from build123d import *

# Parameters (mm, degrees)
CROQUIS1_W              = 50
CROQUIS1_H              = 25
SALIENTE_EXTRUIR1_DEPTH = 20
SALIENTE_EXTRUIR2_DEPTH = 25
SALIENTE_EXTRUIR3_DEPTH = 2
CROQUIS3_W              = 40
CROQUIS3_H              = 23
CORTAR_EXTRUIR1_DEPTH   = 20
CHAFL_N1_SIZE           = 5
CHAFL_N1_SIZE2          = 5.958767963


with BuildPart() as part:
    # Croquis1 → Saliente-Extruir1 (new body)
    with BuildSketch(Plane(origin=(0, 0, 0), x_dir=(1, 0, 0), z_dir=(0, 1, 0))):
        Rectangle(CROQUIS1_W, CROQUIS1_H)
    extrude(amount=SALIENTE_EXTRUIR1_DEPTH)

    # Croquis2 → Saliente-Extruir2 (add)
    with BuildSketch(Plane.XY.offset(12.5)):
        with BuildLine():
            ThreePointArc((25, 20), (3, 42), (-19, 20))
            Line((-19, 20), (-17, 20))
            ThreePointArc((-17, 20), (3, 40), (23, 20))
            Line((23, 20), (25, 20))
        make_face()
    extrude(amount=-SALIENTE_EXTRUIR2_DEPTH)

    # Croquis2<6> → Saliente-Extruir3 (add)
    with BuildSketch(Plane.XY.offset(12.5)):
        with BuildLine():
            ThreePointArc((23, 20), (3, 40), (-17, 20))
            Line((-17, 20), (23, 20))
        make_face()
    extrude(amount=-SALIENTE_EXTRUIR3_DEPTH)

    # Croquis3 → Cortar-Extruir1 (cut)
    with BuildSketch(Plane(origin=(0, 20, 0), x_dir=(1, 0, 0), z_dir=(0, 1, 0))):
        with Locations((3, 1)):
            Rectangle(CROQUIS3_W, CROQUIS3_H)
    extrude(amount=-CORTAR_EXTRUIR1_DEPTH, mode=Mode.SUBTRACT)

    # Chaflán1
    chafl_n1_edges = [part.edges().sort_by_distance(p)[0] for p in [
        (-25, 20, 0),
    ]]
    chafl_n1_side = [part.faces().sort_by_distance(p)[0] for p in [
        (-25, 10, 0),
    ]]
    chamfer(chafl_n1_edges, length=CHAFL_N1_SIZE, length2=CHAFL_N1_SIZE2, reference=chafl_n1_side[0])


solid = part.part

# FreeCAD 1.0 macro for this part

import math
import FreeCAD as App
import Part
import Sketcher


def edges_at(feature, points):
    """Names of the edges that pass closest to the given points."""
    edges = feature.Shape.Edges
    near = lambda p: min(range(len(edges)), key=lambda i: edges[i].distToShape(Part.Vertex(*p))[0])
    return sorted({f"Edge{near(p) + 1}" for p in points})

doc = App.newDocument("Part")
body = doc.addObject("PartDesign::Body", "Body")

sketch1 = doc.addObject("Sketcher::SketchObject", "Sketch")
body.addObject(sketch1)
sketch1.AttachmentSupport = (doc.XZ_Plane, [""])
sketch1.MapMode = "FlatFace"
sketch1.addGeometry([
    Part.LineSegment(App.Vector(-25, -12, 0), App.Vector(-25, 12, 0)),
    Part.LineSegment(App.Vector(-25, 12, 0), App.Vector(25, 12, 0)),
    Part.LineSegment(App.Vector(25, 12, 0), App.Vector(25, -12, 0)),
    Part.LineSegment(App.Vector(25, -12, 0), App.Vector(-25, -12, 0)),
], False)
sketch1.addConstraint([
    Sketcher.Constraint("Coincident", 0, 2, 1, 1),
    Sketcher.Constraint("Coincident", 1, 2, 2, 1),
    Sketcher.Constraint("Coincident", 2, 2, 3, 1),
    Sketcher.Constraint("Coincident", 3, 2, 0, 1),
    Sketcher.Constraint("Vertical", 0),
    Sketcher.Constraint("Horizontal", 1),
    Sketcher.Constraint("Vertical", 2),
    Sketcher.Constraint("Horizontal", 3),
    Sketcher.Constraint("Symmetric", 0, 2, 2, 2, -1, 1),
    Sketcher.Constraint("DistanceX", 1, 1, 1, 2, 50.0),
    Sketcher.Constraint("DistanceY", 0, 1, 0, 2, 25.0),
])
pad1 = doc.addObject("PartDesign::Pad", "Pad")
body.addObject(pad1)
pad1.Profile = sketch1
pad1.Length = 20
pad1.Reversed = True

sketch2 = doc.addObject("Sketcher::SketchObject", "Sketch001")
body.addObject(sketch2)
sketch2.AttachmentSupport = (doc.XY_Plane, [""])
sketch2.MapMode = "FlatFace"
sketch2.AttachmentOffset = App.Placement(App.Vector(0, 0, 12.5), App.Rotation())
sketch2.addGeometry([
    Part.ArcOfCircle(Part.Circle(App.Vector(3, 20, 0), App.Vector(0, 0, 1), 22), math.radians(0), math.radians(180)),
    Part.LineSegment(App.Vector(-19, 20, 0), App.Vector(-17, 20, 0)),
    Part.ArcOfCircle(Part.Circle(App.Vector(3, 20, 0), App.Vector(0, 0, 1), 20), math.radians(0), math.radians(180)),
    Part.LineSegment(App.Vector(23, 20, 0), App.Vector(25, 20, 0)),
], False)
sketch2.addConstraint([
    Sketcher.Constraint("Coincident", 0, 2, 1, 1),
    Sketcher.Constraint("Coincident", 1, 2, 2, 2),
    Sketcher.Constraint("Coincident", 2, 1, 3, 1),
    Sketcher.Constraint("Coincident", 3, 2, 0, 1),
    Sketcher.Constraint("Horizontal", 1),
    Sketcher.Constraint("Horizontal", 3),
    Sketcher.Constraint("Coincident", 2, 3, 0, 3),
    Sketcher.Constraint("Horizontal", 2, 3, 0, 2),
    Sketcher.Constraint("Horizontal", 1, 2, 2, 1),
    Sketcher.Constraint("Radius", 0, 22.0),
    Sketcher.Constraint("Radius", 2, 20.0),
    Sketcher.Constraint("DistanceX", -1, 1, 0, 3, 3.0),
    Sketcher.Constraint("DistanceY", -1, 1, 0, 3, 20.0),
])
pad2 = doc.addObject("PartDesign::Pad", "Pad001")
body.addObject(pad2)
pad2.Profile = sketch2
pad2.Length = 25
pad2.Reversed = True

sketch3 = doc.addObject("Sketcher::SketchObject", "Sketch002")
body.addObject(sketch3)
sketch3.AttachmentSupport = (doc.XY_Plane, [""])
sketch3.MapMode = "FlatFace"
sketch3.AttachmentOffset = App.Placement(App.Vector(0, 0, 12.5), App.Rotation())
sketch3.addGeometry([
    Part.ArcOfCircle(Part.Circle(App.Vector(3, 20, 0), App.Vector(0, 0, 1), 20), math.radians(0), math.radians(180)),
    Part.LineSegment(App.Vector(-17, 20, 0), App.Vector(23, 20, 0)),
], False)
sketch3.addConstraint([
    Sketcher.Constraint("Coincident", 0, 1, 1, 2),
    Sketcher.Constraint("Coincident", 1, 1, 0, 2),
    Sketcher.Constraint("Horizontal", 1),
    Sketcher.Constraint("Radius", 0, 20.0),
    Sketcher.Constraint("DistanceX", -1, 1, 0, 3, 3.0),
    Sketcher.Constraint("DistanceY", -1, 1, 0, 3, 20.0),
    Sketcher.Constraint("DistanceY", -1, 1, 0, 1, 20.0),
])
pad3 = doc.addObject("PartDesign::Pad", "Pad002")
body.addObject(pad3)
pad3.Profile = sketch3
pad3.Length = 2
pad3.Reversed = True

sketch4 = doc.addObject("Sketcher::SketchObject", "Sketch003")
body.addObject(sketch4)
sketch4.AttachmentSupport = (doc.XZ_Plane, [""])
sketch4.MapMode = "FlatFace"
sketch4.AttachmentOffset = App.Placement(App.Vector(0, 0, -20), App.Rotation())
sketch4.addGeometry([
    Part.LineSegment(App.Vector(-17, -12, 0), App.Vector(-17, 10, 0)),
    Part.LineSegment(App.Vector(-17, 10, 0), App.Vector(23, 10, 0)),
    Part.LineSegment(App.Vector(23, 10, 0), App.Vector(23, -12, 0)),
    Part.LineSegment(App.Vector(23, -12, 0), App.Vector(-17, -12, 0)),
], False)
sketch4.addConstraint([
    Sketcher.Constraint("Coincident", 0, 2, 1, 1),
    Sketcher.Constraint("Coincident", 1, 2, 2, 1),
    Sketcher.Constraint("Coincident", 2, 2, 3, 1),
    Sketcher.Constraint("Coincident", 3, 2, 0, 1),
    Sketcher.Constraint("Vertical", 0),
    Sketcher.Constraint("Horizontal", 1),
    Sketcher.Constraint("Vertical", 2),
    Sketcher.Constraint("Horizontal", 3),
    Sketcher.Constraint("DistanceX", 1, 1, 1, 2, 40.0),
    Sketcher.Constraint("DistanceY", 0, 1, 0, 2, 23.0),
    Sketcher.Constraint("DistanceX", 0, 2, -1, 1, 17.0),
    Sketcher.Constraint("DistanceY", -1, 1, 0, 2, 10.5),
])
pocket1 = doc.addObject("PartDesign::Pocket", "Pocket")
body.addObject(pocket1)
pocket1.Profile = sketch4
pocket1.Length = 20
pocket1.Reversed = True
doc.recompute()

chamfer = doc.addObject("PartDesign::Chamfer", "Chamfer")
body.addObject(chamfer)
chamfer.Base = (pocket1, edges_at(pocket1, [(-25, 20, 0)]))
chamfer.ChamferType = "Two distances"
chamfer.Size = 5
chamfer.Size2 = 5.958768

doc.recompute()
